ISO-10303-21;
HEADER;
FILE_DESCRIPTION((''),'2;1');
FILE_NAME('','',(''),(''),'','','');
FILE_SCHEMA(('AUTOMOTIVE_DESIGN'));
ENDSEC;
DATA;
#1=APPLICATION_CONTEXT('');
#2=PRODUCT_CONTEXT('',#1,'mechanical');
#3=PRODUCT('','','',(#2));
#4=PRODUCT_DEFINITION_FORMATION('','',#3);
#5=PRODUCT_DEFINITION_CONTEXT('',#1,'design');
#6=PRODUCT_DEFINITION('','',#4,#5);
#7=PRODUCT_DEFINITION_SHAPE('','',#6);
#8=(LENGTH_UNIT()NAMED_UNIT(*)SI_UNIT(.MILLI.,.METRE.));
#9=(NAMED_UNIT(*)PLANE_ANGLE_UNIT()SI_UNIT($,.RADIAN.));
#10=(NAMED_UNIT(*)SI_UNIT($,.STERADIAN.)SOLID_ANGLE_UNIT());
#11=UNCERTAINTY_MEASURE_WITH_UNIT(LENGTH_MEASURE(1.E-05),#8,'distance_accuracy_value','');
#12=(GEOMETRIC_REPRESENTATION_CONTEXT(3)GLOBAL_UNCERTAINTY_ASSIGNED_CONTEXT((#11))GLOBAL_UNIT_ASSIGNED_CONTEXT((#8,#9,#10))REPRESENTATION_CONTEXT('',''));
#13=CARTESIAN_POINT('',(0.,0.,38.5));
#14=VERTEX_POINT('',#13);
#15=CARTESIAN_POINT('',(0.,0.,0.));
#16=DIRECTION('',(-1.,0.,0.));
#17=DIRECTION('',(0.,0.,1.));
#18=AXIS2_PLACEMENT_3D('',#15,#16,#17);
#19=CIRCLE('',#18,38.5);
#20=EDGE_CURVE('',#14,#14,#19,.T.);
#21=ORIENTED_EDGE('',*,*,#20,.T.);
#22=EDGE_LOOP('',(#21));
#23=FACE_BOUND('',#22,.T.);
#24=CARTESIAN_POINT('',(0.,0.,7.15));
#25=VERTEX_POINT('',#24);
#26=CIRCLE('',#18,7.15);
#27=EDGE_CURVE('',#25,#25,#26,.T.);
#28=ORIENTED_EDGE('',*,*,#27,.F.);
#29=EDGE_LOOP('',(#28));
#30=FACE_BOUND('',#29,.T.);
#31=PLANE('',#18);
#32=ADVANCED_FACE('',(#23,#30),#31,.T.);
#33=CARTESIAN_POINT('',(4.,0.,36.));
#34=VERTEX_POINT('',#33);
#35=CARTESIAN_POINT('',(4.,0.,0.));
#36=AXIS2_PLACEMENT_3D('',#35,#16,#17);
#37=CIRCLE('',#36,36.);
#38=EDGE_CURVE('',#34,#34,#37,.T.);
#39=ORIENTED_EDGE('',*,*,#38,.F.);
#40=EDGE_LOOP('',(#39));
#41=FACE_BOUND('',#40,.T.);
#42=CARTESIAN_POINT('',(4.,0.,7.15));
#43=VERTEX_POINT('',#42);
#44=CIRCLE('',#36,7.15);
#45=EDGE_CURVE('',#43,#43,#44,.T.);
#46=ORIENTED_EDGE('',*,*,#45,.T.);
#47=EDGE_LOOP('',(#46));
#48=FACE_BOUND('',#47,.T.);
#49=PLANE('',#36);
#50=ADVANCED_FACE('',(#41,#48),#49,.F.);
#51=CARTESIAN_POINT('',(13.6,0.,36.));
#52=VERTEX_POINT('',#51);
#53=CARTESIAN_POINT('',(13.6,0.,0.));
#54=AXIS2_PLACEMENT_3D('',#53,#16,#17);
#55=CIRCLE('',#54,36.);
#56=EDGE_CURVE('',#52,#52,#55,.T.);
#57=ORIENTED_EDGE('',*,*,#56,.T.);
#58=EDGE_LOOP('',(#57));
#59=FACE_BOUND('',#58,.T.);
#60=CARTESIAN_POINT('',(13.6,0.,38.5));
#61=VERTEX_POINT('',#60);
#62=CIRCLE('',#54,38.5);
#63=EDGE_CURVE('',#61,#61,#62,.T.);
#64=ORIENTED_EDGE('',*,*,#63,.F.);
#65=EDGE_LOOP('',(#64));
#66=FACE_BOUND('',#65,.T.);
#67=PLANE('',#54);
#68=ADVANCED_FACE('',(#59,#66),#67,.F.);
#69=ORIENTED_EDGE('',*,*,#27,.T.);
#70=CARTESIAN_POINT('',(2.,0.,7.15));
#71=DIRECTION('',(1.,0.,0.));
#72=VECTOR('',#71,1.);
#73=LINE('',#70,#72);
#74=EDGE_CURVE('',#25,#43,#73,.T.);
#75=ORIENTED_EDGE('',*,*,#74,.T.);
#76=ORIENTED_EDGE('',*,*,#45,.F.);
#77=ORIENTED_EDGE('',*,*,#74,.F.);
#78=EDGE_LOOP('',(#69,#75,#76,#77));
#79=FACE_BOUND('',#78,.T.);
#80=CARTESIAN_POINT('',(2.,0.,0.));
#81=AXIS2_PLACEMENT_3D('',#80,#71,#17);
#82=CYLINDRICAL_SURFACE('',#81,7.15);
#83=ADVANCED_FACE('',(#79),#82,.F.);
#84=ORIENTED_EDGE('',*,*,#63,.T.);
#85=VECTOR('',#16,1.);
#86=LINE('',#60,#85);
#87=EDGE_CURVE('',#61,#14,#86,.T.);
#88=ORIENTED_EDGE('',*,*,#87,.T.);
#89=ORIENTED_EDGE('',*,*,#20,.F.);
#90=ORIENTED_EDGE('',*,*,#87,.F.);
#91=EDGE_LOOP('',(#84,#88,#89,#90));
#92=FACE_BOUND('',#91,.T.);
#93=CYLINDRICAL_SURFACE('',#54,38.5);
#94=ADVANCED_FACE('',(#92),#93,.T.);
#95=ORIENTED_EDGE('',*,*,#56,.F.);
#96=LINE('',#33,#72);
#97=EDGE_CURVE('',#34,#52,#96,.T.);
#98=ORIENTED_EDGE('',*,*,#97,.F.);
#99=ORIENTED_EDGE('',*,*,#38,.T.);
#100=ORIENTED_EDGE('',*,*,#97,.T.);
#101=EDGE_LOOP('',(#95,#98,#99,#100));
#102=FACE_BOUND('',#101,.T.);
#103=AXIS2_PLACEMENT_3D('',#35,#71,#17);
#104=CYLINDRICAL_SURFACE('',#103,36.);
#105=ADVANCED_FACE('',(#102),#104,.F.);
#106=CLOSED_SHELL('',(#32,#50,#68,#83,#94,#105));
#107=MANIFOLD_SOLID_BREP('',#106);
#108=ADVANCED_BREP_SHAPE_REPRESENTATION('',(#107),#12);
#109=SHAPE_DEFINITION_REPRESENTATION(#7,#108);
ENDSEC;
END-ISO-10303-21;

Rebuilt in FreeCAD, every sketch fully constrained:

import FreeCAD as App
import Part
import Sketcher

V = App.Vector
Q = App.Units.Quantity


def add_polygon(sketch, points):
    """Adds a closed chain of lines whose ends are joined by coincident constraints."""
    first, n = sketch.GeometryCount, len(points)
    for a, b in zip(points, points[1:] + points[:1]):
        sketch.addGeometry(Part.LineSegment(App.Vector(*a, 0), App.Vector(*b, 0)), False)
    for i in range(n):
        sketch.addConstraint(Sketcher.Constraint("Coincident", first + i, 2, first + (i + 1) % n, 1))

doc = App.newDocument("Part")
body = doc.addObject("PartDesign::Body", "Body")

# Sketch on XZ plane
sketch1 = body.newObject("Sketcher::SketchObject", "Sketch")
sketch1.AttachmentSupport = (doc.getObject("XZ_Plane"), [""])
sketch1.MapMode = "FlatFace"
add_polygon(sketch1, [(0, 7.15), (4, 7.15), (4, 36), (13.6, 36), (13.6, 38.5), (0, 38.5)])  # lines 0-5
sketch1.addConstraint([
    Sketcher.Constraint("Horizontal", 0),
    Sketcher.Constraint("Vertical", 1),
    Sketcher.Constraint("Horizontal", 2),
    Sketcher.Constraint("Vertical", 3),
    Sketcher.Constraint("Horizontal", 4),
    Sketcher.Constraint("Vertical", 5),
    Sketcher.Constraint("PointOnObject", 4, 2, -2),
    Sketcher.Constraint("DistanceX", 0, 1, 0, 2, Q("4 mm")),
    Sketcher.Constraint("DistanceX", 2, 1, 2, 2, Q("9.6 mm")),
    Sketcher.Constraint("DistanceY", 3, 1, 3, 2, Q("2.5 mm")),
    Sketcher.Constraint("DistanceY", -1, 1, 1, 2, Q("36 mm")),
    Sketcher.Constraint("DistanceY", 1, 1, 1, 2, Q("28.85 mm")),
])
revolution = body.newObject("PartDesign::Revolution", "Revolution")
revolution.Profile = sketch1
revolution.ReferenceAxis = (sketch1, ["H_Axis"])
revolution.Angle = 360

doc.recompute()
